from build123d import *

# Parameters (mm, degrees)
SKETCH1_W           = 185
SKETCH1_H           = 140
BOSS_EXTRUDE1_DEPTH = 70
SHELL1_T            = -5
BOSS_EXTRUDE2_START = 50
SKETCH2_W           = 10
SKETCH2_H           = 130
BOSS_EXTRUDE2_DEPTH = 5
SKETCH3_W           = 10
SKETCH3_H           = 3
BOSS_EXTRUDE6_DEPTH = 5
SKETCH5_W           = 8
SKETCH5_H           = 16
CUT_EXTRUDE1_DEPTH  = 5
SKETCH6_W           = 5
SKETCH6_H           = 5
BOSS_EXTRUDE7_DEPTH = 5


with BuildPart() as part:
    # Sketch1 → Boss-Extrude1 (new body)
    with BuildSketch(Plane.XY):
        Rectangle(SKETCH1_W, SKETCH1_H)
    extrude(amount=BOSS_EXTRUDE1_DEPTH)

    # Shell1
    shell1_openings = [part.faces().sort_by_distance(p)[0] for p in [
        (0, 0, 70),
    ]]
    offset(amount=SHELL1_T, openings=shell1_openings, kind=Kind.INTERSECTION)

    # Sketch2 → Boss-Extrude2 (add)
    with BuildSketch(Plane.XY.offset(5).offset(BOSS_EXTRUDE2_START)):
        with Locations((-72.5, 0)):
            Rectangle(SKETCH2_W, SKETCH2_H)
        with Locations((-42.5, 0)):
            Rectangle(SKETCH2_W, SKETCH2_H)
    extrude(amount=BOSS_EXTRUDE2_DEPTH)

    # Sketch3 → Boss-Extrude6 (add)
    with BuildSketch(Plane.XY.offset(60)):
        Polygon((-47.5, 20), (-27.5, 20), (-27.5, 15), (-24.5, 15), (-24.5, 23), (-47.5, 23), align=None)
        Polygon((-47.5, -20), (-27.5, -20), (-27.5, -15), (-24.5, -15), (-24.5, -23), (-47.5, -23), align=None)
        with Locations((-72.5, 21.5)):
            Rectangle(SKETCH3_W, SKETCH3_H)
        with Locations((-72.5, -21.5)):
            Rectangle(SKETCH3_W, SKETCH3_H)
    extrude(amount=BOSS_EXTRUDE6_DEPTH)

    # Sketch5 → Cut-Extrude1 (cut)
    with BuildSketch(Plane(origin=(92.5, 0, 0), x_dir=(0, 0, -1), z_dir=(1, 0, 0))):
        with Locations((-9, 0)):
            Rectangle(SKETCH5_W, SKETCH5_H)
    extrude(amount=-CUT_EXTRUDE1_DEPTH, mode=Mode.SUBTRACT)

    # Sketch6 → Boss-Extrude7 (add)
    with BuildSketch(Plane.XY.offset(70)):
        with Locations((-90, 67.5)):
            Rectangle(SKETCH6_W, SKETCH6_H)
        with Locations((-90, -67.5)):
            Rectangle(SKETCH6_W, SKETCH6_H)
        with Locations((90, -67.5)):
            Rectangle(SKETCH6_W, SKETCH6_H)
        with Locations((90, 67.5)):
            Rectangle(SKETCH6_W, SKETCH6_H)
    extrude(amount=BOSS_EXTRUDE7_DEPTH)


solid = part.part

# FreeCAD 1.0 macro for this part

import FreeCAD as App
import Part
import Sketcher
from FreeCAD import Vector


def faces_at(feature, points):
    """Names of the faces that lie closest to the given points."""
    faces = feature.Shape.Faces
    near = lambda p: min(range(len(faces)), key=lambda i: faces[i].distToShape(Part.Vertex(*p))[0])
    return sorted({f"Face{near(p) + 1}" for p in points})


def add_polygon(sketch, points):
    """Adds a closed chain of lines whose ends are joined by coincident constraints."""
    first, n = sketch.GeometryCount, len(points)
    for a, b in zip(points, points[1:] + points[:1]):
        sketch.addGeometry(Part.LineSegment(App.Vector(*a, 0), App.Vector(*b, 0)), False)
    for i in range(n):
        sketch.addConstraint(Sketcher.Constraint("Coincident", first + i, 2, first + (i + 1) % n, 1))

doc = App.newDocument("Part")
body = doc.addObject("PartDesign::Body", "Body")

sketch1 = body.newObject("Sketcher::SketchObject", "Sketch")
sketch1.AttachmentSupport = (doc.getObject("XY_Plane"), [""])
sketch1.MapMode = "FlatFace"
add_polygon(sketch1, [(-92.5, 70), (-92.5, -70), (92.5, -70), (92.5, 70)])
sketch1.addConstraint(Sketcher.Constraint("Vertical", 0))
sketch1.addConstraint(Sketcher.Constraint("Horizontal", 1))
sketch1.addConstraint(Sketcher.Constraint("Vertical", 2))
sketch1.addConstraint(Sketcher.Constraint("Horizontal", 3))
sketch1.addConstraint(Sketcher.Constraint("Symmetric", 0, 2, 2, 2, -1, 1))
sketch1.addConstraint(Sketcher.Constraint("DistanceX", 1, 1, 1, 2, 185.0))
sketch1.addConstraint(Sketcher.Constraint("DistanceY", 0, 2, 0, 1, 140.0))
pad1 = body.newObject("PartDesign::Pad", "Pad")
pad1.Profile = sketch1
pad1.Length = 70
doc.recompute()

thickness = body.newObject("PartDesign::Thickness", "Thickness")
thickness.Base = (pad1, faces_at(pad1, [(0, 0, 70)]))
thickness.Value = 5
thickness.Reversed = True
thickness.Join = "Intersection"

sketch2 = body.newObject("Sketcher::SketchObject", "Sketch001")
sketch2.AttachmentSupport = (doc.getObject("XY_Plane"), [""])
sketch2.MapMode = "FlatFace"
sketch2.AttachmentOffset = App.Placement(Vector(0, 0, 55), App.Rotation())
add_polygon(sketch2, [(-77.5, 65), (-77.5, -65), (-67.5, -65), (-67.5, 65)])
add_polygon(sketch2, [(-47.5, 65), (-47.5, -65), (-37.5, -65), (-37.5, 65)])
sketch2.addConstraint(Sketcher.Constraint("Vertical", 0))
sketch2.addConstraint(Sketcher.Constraint("Horizontal", 1))
sketch2.addConstraint(Sketcher.Constraint("Vertical", 2))
sketch2.addConstraint(Sketcher.Constraint("Horizontal", 3))
sketch2.addConstraint(Sketcher.Constraint("Vertical", 4))
sketch2.addConstraint(Sketcher.Constraint("Horizontal", 5))
sketch2.addConstraint(Sketcher.Constraint("Vertical", 6))
sketch2.addConstraint(Sketcher.Constraint("Horizontal", 7))
sketch2.addConstraint(Sketcher.Constraint("Horizontal", 1, 2, 4, 2))
sketch2.addConstraint(Sketcher.Constraint("Horizontal", 3, 2, 6, 2))
sketch2.addConstraint(Sketcher.Constraint("Equal", 3, 5))
sketch2.addConstraint(Sketcher.Constraint("DistanceX", 1, 1, 1, 2, 10.0))
sketch2.addConstraint(Sketcher.Constraint("DistanceY", 0, 2, 0, 1, 130.0))
sketch2.addConstraint(Sketcher.Constraint("DistanceY", 0, 2, -1, 1, 65.0))
sketch2.addConstraint(Sketcher.Constraint("DistanceX", 1, 2, 4, 2, 20.0))
sketch2.addConstraint(Sketcher.Constraint("DistanceX", 0, 2, -1, 1, 77.5))
pad2 = body.newObject("PartDesign::Pad", "Pad001")
pad2.Profile = sketch2
pad2.Length = 5

sketch3 = body.newObject("Sketcher::SketchObject", "Sketch002")
sketch3.AttachmentSupport = (doc.getObject("XY_Plane"), [""])
sketch3.MapMode = "FlatFace"
sketch3.AttachmentOffset = App.Placement(Vector(0, 0, 60), App.Rotation())
add_polygon(sketch3, [(-47.5, 20), (-27.5, 20), (-27.5, 15), (-24.5, 15), (-24.5, 23), (-47.5, 23)])
add_polygon(sketch3, [(-27.5, -20), (-47.5, -20), (-47.5, -23), (-24.5, -23), (-24.5, -15), (-27.5, -15)])
add_polygon(sketch3, [(-77.5, 23), (-77.5, 20), (-67.5, 20), (-67.5, 23)])
add_polygon(sketch3, [(-77.5, -20), (-77.5, -23), (-67.5, -23), (-67.5, -20)])
sketch3.addConstraint(Sketcher.Constraint("Horizontal", 0))
sketch3.addConstraint(Sketcher.Constraint("Vertical", 1))
sketch3.addConstraint(Sketcher.Constraint("Horizontal", 2))
sketch3.addConstraint(Sketcher.Constraint("Vertical", 3))
sketch3.addConstraint(Sketcher.Constraint("Horizontal", 4))
sketch3.addConstraint(Sketcher.Constraint("Vertical", 5))
sketch3.addConstraint(Sketcher.Constraint("Horizontal", 6))
sketch3.addConstraint(Sketcher.Constraint("Vertical", 7))
sketch3.addConstraint(Sketcher.Constraint("Horizontal", 8))
sketch3.addConstraint(Sketcher.Constraint("Vertical", 9))
sketch3.addConstraint(Sketcher.Constraint("Horizontal", 10))
sketch3.addConstraint(Sketcher.Constraint("Vertical", 11))
sketch3.addConstraint(Sketcher.Constraint("Vertical", 12))
sketch3.addConstraint(Sketcher.Constraint("Horizontal", 13))
sketch3.addConstraint(Sketcher.Constraint("Vertical", 14))
sketch3.addConstraint(Sketcher.Constraint("Horizontal", 15))
sketch3.addConstraint(Sketcher.Constraint("Vertical", 16))
sketch3.addConstraint(Sketcher.Constraint("Horizontal", 17))
sketch3.addConstraint(Sketcher.Constraint("Vertical", 18))
sketch3.addConstraint(Sketcher.Constraint("Horizontal", 19))
sketch3.addConstraint(Sketcher.Constraint("Symmetric", 5, 2, 6, 2, -1))
sketch3.addConstraint(Sketcher.Constraint("Symmetric", 3, 2, 8, 2, -1))
sketch3.addConstraint(Sketcher.Constraint("Symmetric", 1, 2, 10, 2, -1))
sketch3.addConstraint(Sketcher.Constraint("Symmetric", 15, 2, 16, 2, -1))
sketch3.addConstraint(Sketcher.Constraint("Symmetric", 13, 2, 18, 2, -1))
sketch3.addConstraint(Sketcher.Constraint("Horizontal", 5, 2, 12, 2))
sketch3.addConstraint(Sketcher.Constraint("Horizontal", 4, 2, 14, 2))
sketch3.addConstraint(Sketcher.Constraint("Equal", 10, 5))
sketch3.addConstraint(Sketcher.Constraint("DistanceX", 0, 1, 0, 2, 20.0))
sketch3.addConstraint(Sketcher.Constraint("DistanceX", 2, 1, 2, 2, 3.0))
sketch3.addConstraint(Sketcher.Constraint("DistanceX", 13, 1, 13, 2, 10.0))
sketch3.addConstraint(Sketcher.Constraint("DistanceY", 1, 2, 1, 1, 5.0))
sketch3.addConstraint(Sketcher.Constraint("DistanceY", -1, 1, 0, 2, 20.0))
sketch3.addConstraint(Sketcher.Constraint("DistanceX", 12, 2, 5, 2, 30.0))
sketch3.addConstraint(Sketcher.Constraint("DistanceX", 0, 2, -1, 1, 27.5))
pad3 = body.newObject("PartDesign::Pad", "Pad002")
pad3.Profile = sketch3
pad3.Length = 5

sketch4 = body.newObject("Sketcher::SketchObject", "Sketch003")
sketch4.AttachmentSupport = (doc.getObject("YZ_Plane"), [""])
sketch4.MapMode = "FlatFace"
sketch4.AttachmentOffset = App.Placement(Vector(0, 0, 92.5), App.Rotation())
add_polygon(sketch4, [(8, 13), (-8, 13), (-8, 5), (8, 5)])
sketch4.addConstraint(Sketcher.Constraint("Horizontal", 0))
sketch4.addConstraint(Sketcher.Constraint("Vertical", 1))
sketch4.addConstraint(Sketcher.Constraint("Horizontal", 2))
sketch4.addConstraint(Sketcher.Constraint("Vertical", 3))
sketch4.addConstraint(Sketcher.Constraint("DistanceX", 0, 2, 0, 1, 16.0))
sketch4.addConstraint(Sketcher.Constraint("DistanceY", 1, 2, 1, 1, 8.0))
sketch4.addConstraint(Sketcher.Constraint("DistanceX", 0, 2, -1, 1, 8.0))
sketch4.addConstraint(Sketcher.Constraint("DistanceY", -1, 1, 0, 2, 13.0))
pocket1 = body.newObject("PartDesign::Pocket", "Pocket")
pocket1.Profile = sketch4
pocket1.Length = 5

sketch5 = body.newObject("Sketcher::SketchObject", "Sketch004")
sketch5.AttachmentSupport = (doc.getObject("XY_Plane"), [""])
sketch5.MapMode = "FlatFace"
sketch5.AttachmentOffset = App.Placement(Vector(0, 0, 70), App.Rotation())
add_polygon(sketch5, [(-92.5, 70), (-92.5, 65), (-87.5, 65), (-87.5, 70)])
add_polygon(sketch5, [(-92.5, -65), (-92.5, -70), (-87.5, -70), (-87.5, -65)])
add_polygon(sketch5, [(87.5, -65), (87.5, -70), (92.5, -70), (92.5, -65)])
add_polygon(sketch5, [(87.5, 70), (87.5, 65), (92.5, 65), (92.5, 70)])
sketch5.addConstraint(Sketcher.Constraint("Vertical", 0))
sketch5.addConstraint(Sketcher.Constraint("Horizontal", 1))
sketch5.addConstraint(Sketcher.Constraint("Vertical", 2))
sketch5.addConstraint(Sketcher.Constraint("Horizontal", 3))
sketch5.addConstraint(Sketcher.Constraint("Vertical", 4))
sketch5.addConstraint(Sketcher.Constraint("Horizontal", 5))
sketch5.addConstraint(Sketcher.Constraint("Vertical", 6))
sketch5.addConstraint(Sketcher.Constraint("Horizontal", 7))
sketch5.addConstraint(Sketcher.Constraint("Vertical", 8))
sketch5.addConstraint(Sketcher.Constraint("Horizontal", 9))
sketch5.addConstraint(Sketcher.Constraint("Vertical", 10))
sketch5.addConstraint(Sketcher.Constraint("Horizontal", 11))
sketch5.addConstraint(Sketcher.Constraint("Vertical", 12))
sketch5.addConstraint(Sketcher.Constraint("Horizontal", 13))
sketch5.addConstraint(Sketcher.Constraint("Vertical", 14))
sketch5.addConstraint(Sketcher.Constraint("Horizontal", 15))
sketch5.addConstraint(Sketcher.Constraint("Symmetric", 2, 2, 8, 2, -1, 1))
sketch5.addConstraint(Sketcher.Constraint("Symmetric", 0, 2, 10, 2, -1, 1))
sketch5.addConstraint(Sketcher.Constraint("Symmetric", 6, 2, 12, 2, -1, 1))
sketch5.addConstraint(Sketcher.Constraint("Symmetric", 4, 2, 14, 2, -1, 1))
sketch5.addConstraint(Sketcher.Constraint("Symmetric", 5, 2, 8, 2, -2))
sketch5.addConstraint(Sketcher.Constraint("Symmetric", 7, 2, 10, 2, -2))
sketch5.addConstraint(Sketcher.Constraint("Equal", 15, 0))
sketch5.addConstraint(Sketcher.Constraint("DistanceX", 1, 1, 1, 2, 5.0))
sketch5.addConstraint(Sketcher.Constraint("DistanceY", -1, 1, 0, 2, 65.0))
sketch5.addConstraint(Sketcher.Constraint("DistanceX", 5, 2, 8, 2, 175.0))
pad4 = body.newObject("PartDesign::Pad", "Pad003")
pad4.Profile = sketch5
pad4.Length = 5

doc.recompute()
